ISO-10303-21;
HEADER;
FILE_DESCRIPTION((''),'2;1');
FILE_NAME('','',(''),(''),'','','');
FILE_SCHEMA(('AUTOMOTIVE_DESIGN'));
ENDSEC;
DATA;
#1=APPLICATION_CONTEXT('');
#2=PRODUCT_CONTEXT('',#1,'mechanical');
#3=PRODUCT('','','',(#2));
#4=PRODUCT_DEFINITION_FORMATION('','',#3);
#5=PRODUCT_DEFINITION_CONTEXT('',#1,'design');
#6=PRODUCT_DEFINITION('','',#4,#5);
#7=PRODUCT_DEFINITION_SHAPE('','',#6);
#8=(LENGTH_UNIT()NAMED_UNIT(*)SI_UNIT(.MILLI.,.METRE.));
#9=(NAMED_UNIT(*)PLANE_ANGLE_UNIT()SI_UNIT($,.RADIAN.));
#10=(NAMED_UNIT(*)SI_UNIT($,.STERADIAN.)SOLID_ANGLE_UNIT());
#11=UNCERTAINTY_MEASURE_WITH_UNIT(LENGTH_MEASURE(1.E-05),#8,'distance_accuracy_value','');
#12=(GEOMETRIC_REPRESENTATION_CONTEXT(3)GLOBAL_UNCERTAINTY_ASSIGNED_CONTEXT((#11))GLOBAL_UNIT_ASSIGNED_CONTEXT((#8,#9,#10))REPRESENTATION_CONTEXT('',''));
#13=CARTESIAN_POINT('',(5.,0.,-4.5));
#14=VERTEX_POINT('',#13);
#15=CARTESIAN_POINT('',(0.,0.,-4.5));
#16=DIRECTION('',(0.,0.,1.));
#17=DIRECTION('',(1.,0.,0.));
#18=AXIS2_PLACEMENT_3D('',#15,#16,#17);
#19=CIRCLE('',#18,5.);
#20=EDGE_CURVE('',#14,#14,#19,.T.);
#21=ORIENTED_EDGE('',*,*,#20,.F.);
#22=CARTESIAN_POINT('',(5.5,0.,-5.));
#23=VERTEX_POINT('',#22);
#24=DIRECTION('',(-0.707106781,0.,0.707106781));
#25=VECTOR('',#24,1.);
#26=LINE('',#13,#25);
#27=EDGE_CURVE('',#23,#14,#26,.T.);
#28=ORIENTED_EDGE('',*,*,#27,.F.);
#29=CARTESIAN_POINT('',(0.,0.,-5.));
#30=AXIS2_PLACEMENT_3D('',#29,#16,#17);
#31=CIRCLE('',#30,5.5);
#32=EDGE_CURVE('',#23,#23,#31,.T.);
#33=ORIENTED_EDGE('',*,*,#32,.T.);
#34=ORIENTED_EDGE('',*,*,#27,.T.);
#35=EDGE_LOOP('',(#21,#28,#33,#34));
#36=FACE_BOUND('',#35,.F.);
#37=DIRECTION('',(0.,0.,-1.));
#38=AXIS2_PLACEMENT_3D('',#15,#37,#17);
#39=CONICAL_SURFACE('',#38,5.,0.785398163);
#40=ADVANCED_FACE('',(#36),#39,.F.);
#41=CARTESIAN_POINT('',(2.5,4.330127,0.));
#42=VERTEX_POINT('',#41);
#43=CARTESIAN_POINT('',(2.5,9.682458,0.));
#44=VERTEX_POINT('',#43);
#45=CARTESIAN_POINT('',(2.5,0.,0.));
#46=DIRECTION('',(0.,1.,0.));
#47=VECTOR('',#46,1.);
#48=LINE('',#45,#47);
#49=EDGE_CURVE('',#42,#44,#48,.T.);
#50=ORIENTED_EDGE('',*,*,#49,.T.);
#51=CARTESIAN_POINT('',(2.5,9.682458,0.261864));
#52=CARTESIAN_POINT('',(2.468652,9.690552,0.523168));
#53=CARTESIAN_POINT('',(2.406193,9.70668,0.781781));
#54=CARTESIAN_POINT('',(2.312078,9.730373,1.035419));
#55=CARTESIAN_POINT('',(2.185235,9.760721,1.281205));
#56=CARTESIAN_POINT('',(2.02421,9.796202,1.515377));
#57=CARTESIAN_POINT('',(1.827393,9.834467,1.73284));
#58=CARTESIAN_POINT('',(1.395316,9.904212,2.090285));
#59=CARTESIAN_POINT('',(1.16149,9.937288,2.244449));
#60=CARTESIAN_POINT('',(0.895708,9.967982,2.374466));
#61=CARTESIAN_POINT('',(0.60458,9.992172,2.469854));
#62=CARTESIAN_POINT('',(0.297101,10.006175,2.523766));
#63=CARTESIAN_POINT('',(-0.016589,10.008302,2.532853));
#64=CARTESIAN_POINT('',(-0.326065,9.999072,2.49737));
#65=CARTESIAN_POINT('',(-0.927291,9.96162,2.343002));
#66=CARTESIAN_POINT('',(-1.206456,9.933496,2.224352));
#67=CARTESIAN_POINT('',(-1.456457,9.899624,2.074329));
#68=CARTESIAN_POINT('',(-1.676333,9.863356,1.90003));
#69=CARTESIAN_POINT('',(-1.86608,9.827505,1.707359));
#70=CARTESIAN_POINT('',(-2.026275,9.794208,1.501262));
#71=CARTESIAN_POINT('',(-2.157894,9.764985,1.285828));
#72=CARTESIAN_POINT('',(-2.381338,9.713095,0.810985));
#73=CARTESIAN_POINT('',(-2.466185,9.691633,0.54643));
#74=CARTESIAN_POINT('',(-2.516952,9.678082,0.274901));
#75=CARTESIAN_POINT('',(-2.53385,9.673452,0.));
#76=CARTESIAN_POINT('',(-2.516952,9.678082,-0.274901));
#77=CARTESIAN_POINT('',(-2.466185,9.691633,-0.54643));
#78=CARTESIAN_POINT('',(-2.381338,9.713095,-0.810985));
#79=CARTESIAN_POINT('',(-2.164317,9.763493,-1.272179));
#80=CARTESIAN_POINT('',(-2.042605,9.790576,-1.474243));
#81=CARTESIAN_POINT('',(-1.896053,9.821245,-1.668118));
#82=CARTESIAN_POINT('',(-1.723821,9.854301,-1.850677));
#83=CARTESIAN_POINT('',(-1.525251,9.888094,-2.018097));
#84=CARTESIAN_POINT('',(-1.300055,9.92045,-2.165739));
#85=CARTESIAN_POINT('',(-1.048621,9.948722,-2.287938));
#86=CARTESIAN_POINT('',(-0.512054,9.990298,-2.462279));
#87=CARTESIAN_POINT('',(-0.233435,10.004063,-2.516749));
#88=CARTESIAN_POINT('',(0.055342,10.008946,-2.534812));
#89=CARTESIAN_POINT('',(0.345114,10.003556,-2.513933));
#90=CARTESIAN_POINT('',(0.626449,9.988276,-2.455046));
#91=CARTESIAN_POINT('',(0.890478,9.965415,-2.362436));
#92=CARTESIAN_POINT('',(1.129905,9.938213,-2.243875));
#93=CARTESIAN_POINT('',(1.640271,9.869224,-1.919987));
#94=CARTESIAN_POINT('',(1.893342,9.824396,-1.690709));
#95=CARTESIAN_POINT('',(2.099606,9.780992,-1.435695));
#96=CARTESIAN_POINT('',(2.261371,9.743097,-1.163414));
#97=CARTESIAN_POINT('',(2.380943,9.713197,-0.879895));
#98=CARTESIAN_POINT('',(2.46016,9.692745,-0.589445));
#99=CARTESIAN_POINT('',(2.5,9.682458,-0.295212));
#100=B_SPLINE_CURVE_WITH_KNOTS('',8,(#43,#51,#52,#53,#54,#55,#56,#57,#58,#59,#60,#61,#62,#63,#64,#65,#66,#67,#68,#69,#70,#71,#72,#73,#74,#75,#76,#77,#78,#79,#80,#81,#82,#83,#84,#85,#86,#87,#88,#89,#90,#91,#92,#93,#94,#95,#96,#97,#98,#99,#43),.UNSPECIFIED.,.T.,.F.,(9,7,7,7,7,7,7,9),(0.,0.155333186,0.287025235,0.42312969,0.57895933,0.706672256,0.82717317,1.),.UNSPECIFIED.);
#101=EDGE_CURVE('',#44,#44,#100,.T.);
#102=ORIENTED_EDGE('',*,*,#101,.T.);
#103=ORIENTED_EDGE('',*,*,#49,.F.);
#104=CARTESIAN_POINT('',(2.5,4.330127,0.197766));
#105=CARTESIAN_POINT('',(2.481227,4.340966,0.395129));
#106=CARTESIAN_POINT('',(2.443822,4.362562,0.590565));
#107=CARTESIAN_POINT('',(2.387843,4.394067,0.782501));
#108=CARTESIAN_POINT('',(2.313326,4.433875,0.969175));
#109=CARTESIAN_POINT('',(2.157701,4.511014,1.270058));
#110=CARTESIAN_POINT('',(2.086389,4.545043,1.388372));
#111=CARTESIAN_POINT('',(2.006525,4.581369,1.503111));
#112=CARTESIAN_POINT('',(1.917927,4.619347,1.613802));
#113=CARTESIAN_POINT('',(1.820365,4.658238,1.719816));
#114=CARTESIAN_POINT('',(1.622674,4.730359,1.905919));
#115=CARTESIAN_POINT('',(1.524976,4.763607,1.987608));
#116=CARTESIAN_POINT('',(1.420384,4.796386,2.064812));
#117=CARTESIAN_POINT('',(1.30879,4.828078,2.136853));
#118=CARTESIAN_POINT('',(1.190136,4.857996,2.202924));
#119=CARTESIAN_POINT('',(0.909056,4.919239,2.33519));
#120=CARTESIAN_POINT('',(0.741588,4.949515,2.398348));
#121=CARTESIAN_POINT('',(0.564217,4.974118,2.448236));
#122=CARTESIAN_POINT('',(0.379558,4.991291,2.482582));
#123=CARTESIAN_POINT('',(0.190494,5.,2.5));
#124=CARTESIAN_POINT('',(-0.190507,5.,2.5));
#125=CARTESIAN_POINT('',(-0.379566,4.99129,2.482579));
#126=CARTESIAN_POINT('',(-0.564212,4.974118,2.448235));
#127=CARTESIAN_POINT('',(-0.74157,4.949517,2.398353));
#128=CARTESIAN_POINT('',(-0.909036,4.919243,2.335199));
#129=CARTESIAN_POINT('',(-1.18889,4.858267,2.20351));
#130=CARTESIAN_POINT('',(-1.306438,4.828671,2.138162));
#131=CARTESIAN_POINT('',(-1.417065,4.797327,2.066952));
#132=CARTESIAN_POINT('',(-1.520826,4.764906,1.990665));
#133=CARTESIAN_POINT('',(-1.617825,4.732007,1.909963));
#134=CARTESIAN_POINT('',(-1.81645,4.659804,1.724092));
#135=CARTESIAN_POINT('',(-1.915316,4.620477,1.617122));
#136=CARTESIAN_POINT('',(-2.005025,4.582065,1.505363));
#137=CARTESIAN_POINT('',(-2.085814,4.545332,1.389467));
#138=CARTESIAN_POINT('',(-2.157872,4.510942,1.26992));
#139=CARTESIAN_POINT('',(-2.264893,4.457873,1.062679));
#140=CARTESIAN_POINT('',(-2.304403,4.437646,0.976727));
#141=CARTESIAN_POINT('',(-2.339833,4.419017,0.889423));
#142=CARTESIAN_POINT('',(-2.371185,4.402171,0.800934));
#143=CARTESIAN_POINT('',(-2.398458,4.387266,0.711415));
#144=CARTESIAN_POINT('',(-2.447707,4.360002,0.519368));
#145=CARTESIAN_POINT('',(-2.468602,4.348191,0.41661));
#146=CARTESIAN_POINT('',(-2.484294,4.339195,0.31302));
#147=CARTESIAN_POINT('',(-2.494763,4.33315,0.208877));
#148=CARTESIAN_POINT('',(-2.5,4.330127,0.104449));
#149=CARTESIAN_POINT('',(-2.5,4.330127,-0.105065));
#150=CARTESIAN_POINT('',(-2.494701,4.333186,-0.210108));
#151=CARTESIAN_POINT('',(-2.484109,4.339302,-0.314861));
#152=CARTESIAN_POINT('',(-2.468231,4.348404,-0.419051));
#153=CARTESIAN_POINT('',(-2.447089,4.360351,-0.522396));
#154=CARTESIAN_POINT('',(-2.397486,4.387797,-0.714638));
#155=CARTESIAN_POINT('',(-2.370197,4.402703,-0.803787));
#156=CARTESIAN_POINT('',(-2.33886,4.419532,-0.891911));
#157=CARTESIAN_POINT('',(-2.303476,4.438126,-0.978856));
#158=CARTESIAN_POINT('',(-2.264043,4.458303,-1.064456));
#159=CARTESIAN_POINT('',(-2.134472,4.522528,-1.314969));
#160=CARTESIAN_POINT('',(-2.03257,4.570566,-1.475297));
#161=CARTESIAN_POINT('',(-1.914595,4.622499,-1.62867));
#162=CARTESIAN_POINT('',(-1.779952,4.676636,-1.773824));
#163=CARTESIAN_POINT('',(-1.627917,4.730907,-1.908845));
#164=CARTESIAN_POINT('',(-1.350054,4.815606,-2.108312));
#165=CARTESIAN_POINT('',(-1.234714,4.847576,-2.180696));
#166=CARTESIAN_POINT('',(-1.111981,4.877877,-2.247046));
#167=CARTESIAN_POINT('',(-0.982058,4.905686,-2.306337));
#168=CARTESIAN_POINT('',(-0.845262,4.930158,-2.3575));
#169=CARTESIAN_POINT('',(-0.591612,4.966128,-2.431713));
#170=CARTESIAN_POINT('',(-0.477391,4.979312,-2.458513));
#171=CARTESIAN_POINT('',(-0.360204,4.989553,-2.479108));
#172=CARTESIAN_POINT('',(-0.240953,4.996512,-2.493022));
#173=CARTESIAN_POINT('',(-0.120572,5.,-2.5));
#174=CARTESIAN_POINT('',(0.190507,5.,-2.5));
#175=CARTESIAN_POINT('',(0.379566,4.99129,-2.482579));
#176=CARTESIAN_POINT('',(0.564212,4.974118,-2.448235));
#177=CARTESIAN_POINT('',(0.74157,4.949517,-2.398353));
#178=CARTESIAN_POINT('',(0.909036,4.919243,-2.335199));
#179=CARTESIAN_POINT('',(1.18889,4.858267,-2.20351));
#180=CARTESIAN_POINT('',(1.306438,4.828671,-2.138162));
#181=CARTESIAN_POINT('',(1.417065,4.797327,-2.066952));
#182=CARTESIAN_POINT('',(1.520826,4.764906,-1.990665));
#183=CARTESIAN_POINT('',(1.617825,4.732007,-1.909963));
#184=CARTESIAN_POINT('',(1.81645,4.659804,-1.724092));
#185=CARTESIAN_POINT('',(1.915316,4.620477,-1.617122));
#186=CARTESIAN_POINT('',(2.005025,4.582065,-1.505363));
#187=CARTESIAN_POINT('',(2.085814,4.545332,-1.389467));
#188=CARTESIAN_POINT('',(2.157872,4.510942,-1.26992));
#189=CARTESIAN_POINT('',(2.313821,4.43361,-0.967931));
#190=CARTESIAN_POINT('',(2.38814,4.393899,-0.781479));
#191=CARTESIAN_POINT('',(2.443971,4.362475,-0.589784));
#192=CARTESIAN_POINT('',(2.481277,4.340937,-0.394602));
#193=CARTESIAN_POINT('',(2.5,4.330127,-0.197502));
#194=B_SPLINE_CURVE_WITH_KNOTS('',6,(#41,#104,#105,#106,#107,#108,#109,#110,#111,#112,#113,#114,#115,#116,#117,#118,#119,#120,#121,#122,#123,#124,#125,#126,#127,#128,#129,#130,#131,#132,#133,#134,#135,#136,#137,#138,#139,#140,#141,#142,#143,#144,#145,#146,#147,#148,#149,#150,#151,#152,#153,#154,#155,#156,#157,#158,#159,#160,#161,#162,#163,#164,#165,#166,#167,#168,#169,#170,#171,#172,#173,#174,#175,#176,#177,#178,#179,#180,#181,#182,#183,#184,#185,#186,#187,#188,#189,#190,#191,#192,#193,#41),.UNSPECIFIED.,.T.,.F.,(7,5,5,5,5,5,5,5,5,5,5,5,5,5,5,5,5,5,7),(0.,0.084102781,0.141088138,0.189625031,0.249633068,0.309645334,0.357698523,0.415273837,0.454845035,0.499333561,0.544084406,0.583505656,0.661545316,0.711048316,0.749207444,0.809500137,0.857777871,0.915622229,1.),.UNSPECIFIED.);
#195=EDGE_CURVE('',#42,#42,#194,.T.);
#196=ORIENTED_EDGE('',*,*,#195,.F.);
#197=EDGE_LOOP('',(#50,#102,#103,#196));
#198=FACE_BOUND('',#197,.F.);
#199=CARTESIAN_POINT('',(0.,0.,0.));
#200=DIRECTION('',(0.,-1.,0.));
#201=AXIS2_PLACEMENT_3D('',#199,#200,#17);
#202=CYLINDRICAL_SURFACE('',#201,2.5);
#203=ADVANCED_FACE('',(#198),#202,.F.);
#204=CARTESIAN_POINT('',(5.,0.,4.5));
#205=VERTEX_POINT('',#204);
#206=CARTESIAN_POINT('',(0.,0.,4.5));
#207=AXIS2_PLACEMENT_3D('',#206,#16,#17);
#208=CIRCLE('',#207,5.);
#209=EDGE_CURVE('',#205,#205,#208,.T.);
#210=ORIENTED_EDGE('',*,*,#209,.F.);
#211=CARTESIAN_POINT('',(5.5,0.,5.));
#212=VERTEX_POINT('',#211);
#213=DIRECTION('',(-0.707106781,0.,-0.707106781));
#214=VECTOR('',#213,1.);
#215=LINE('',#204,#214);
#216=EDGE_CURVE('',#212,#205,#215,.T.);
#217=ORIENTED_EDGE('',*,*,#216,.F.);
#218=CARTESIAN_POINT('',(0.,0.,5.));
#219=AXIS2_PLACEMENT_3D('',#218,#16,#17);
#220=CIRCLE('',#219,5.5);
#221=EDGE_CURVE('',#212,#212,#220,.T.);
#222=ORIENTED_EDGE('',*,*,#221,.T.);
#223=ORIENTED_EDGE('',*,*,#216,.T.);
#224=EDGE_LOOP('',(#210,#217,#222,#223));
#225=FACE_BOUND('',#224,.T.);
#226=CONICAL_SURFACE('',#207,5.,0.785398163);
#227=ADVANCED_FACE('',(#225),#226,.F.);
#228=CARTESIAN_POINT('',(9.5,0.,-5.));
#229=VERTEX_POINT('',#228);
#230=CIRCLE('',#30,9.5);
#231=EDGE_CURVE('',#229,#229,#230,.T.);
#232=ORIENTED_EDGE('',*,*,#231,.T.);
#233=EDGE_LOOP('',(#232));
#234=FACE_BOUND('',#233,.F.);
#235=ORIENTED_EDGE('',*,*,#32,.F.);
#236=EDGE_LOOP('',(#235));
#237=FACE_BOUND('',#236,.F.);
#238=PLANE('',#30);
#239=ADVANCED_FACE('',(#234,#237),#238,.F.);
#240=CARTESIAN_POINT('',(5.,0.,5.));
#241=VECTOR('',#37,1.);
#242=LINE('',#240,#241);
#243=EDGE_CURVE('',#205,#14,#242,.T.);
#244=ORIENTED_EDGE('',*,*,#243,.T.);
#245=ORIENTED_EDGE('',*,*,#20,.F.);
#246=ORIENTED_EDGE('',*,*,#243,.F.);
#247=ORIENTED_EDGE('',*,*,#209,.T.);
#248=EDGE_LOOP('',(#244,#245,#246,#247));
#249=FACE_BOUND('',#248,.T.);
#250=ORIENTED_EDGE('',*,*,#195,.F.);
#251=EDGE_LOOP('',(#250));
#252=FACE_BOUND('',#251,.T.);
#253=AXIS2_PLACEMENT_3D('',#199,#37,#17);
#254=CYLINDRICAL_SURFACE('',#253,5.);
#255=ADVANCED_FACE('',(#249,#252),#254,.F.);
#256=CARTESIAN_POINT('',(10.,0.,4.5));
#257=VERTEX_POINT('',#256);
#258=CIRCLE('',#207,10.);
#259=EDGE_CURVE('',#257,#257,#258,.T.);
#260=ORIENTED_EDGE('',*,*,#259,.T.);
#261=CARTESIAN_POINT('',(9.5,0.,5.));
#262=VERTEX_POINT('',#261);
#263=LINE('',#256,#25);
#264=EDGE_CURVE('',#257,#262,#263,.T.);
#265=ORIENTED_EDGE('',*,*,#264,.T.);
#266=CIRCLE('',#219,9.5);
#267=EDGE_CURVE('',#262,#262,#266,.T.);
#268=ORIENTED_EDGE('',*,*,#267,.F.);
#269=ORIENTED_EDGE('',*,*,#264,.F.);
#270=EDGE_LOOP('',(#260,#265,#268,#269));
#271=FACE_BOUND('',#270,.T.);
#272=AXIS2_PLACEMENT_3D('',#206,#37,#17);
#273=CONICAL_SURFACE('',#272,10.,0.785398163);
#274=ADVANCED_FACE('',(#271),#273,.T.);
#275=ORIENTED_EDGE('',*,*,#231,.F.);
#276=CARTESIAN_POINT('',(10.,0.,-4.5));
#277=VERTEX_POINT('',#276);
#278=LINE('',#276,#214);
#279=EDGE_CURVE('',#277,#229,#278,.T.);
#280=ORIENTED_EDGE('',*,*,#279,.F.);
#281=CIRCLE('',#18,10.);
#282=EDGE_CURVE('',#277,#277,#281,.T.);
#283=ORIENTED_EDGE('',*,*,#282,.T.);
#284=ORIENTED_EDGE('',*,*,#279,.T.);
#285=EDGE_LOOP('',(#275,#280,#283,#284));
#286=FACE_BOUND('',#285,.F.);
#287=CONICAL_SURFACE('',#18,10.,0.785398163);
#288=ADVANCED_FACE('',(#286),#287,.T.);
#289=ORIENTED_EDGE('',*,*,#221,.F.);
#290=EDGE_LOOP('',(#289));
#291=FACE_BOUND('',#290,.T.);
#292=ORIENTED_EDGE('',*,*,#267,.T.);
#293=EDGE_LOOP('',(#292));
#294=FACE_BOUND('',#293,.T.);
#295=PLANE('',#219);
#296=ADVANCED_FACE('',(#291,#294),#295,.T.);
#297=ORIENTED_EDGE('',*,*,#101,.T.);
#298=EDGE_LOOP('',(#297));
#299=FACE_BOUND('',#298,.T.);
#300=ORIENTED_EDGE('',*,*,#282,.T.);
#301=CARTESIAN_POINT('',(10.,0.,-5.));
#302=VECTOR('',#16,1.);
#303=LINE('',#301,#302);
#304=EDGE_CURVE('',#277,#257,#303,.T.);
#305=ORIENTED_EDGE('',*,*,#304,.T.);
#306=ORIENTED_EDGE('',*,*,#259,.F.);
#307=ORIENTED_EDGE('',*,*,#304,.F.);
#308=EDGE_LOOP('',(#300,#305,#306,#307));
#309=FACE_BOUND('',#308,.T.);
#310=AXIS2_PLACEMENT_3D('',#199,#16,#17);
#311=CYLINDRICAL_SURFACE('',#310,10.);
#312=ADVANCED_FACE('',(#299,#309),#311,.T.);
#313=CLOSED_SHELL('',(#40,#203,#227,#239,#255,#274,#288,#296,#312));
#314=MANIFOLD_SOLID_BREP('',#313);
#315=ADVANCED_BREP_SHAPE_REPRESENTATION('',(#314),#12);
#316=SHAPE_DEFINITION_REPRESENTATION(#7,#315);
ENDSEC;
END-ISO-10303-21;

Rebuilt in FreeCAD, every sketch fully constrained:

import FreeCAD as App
import Part
import Sketcher
Q = App.Units.Quantity


def edges_at(feature, points):
    """Names of the edges that pass closest to the given points."""
    edges = feature.Shape.Edges
    near = lambda p: min(range(len(edges)), key=lambda i: edges[i].distToShape(Part.Vertex(*p))[0])
    return sorted({f"Edge{near(p) + 1}" for p in points})

doc = App.newDocument("Part")
params = doc.addObject("Spreadsheet::Sheet", "Params")
for row, (alias, value) in enumerate([
    ("sketch1_diameter", "20 mm"),
    ("sketch1_diameter2", "10 mm"),
    ("pad1_length", "10 mm"),
    ("sketch2_diameter", "5 mm"),
    ("chamfer_size", "0.5 mm"),
], start=1):
    params.set(f"A{row}", alias)
    params.set(f"B{row}", "=" + value)
    params.setAlias(f"B{row}", alias)

body = doc.addObject("PartDesign::Body", "Body")

# Sketch on XY plane
sketch1 = body.newObject("Sketcher::SketchObject", "Sketch")
sketch1.AttachmentSupport = (doc.getObject("XY_Plane"), [""])
sketch1.MapMode = "FlatFace"
sketch1.addGeometry([
    Part.Circle(App.Vector(0, 0, 0), App.Vector(0, 0, 1), 10),
    Part.Circle(App.Vector(0, 0, 0), App.Vector(0, 0, 1), 5),
], False)
sketch1.addConstraint([
    Sketcher.Constraint("Coincident", 0, 3, -1, 1),
    Sketcher.Constraint("Coincident", 1, 3, -1, 1),
    Sketcher.Constraint("Diameter", 0, Q("20 mm")),
    Sketcher.Constraint("Diameter", 1, Q("10 mm")),
])
sketch1.setExpression("Constraints[2]", "Params.sketch1_diameter")
sketch1.setExpression("Constraints[3]", "Params.sketch1_diameter2")
pad1 = body.newObject("PartDesign::Pad", "Pad")
pad1.Profile = sketch1
pad1.setExpression("Length", "Params.pad1_length")
pad1.Midplane = True

# Sketch on XZ plane
sketch2 = body.newObject("Sketcher::SketchObject", "Sketch001")
sketch2.AttachmentSupport = (doc.getObject("XZ_Plane"), [""])
sketch2.MapMode = "FlatFace"
sketch2.addGeometry(Part.Circle(App.Vector(0, 0, 0), App.Vector(0, 0, 1), 2.5), False)
sketch2.addConstraint([
    Sketcher.Constraint("Coincident", 0, 3, -1, 1),
    Sketcher.Constraint("Diameter", 0, Q("5 mm")),
])
sketch2.setExpression("Constraints[1]", "Params.sketch2_diameter")
pocket1 = body.newObject("PartDesign::Pocket", "Pocket")
pocket1.Profile = sketch2
pocket1.Type = "ThroughAll"
doc.recompute()

chamfer = body.newObject("PartDesign::Chamfer", "Chamfer")
chamfer.Base = (pocket1, edges_at(pocket1, [
    (-5, 0, -5),
    (-10, 0, -5),
    (-5, 0, 5),
    (-10, 0, 5),
]))
chamfer.setExpression("Size", "Params.chamfer_size")

doc.recompute()
